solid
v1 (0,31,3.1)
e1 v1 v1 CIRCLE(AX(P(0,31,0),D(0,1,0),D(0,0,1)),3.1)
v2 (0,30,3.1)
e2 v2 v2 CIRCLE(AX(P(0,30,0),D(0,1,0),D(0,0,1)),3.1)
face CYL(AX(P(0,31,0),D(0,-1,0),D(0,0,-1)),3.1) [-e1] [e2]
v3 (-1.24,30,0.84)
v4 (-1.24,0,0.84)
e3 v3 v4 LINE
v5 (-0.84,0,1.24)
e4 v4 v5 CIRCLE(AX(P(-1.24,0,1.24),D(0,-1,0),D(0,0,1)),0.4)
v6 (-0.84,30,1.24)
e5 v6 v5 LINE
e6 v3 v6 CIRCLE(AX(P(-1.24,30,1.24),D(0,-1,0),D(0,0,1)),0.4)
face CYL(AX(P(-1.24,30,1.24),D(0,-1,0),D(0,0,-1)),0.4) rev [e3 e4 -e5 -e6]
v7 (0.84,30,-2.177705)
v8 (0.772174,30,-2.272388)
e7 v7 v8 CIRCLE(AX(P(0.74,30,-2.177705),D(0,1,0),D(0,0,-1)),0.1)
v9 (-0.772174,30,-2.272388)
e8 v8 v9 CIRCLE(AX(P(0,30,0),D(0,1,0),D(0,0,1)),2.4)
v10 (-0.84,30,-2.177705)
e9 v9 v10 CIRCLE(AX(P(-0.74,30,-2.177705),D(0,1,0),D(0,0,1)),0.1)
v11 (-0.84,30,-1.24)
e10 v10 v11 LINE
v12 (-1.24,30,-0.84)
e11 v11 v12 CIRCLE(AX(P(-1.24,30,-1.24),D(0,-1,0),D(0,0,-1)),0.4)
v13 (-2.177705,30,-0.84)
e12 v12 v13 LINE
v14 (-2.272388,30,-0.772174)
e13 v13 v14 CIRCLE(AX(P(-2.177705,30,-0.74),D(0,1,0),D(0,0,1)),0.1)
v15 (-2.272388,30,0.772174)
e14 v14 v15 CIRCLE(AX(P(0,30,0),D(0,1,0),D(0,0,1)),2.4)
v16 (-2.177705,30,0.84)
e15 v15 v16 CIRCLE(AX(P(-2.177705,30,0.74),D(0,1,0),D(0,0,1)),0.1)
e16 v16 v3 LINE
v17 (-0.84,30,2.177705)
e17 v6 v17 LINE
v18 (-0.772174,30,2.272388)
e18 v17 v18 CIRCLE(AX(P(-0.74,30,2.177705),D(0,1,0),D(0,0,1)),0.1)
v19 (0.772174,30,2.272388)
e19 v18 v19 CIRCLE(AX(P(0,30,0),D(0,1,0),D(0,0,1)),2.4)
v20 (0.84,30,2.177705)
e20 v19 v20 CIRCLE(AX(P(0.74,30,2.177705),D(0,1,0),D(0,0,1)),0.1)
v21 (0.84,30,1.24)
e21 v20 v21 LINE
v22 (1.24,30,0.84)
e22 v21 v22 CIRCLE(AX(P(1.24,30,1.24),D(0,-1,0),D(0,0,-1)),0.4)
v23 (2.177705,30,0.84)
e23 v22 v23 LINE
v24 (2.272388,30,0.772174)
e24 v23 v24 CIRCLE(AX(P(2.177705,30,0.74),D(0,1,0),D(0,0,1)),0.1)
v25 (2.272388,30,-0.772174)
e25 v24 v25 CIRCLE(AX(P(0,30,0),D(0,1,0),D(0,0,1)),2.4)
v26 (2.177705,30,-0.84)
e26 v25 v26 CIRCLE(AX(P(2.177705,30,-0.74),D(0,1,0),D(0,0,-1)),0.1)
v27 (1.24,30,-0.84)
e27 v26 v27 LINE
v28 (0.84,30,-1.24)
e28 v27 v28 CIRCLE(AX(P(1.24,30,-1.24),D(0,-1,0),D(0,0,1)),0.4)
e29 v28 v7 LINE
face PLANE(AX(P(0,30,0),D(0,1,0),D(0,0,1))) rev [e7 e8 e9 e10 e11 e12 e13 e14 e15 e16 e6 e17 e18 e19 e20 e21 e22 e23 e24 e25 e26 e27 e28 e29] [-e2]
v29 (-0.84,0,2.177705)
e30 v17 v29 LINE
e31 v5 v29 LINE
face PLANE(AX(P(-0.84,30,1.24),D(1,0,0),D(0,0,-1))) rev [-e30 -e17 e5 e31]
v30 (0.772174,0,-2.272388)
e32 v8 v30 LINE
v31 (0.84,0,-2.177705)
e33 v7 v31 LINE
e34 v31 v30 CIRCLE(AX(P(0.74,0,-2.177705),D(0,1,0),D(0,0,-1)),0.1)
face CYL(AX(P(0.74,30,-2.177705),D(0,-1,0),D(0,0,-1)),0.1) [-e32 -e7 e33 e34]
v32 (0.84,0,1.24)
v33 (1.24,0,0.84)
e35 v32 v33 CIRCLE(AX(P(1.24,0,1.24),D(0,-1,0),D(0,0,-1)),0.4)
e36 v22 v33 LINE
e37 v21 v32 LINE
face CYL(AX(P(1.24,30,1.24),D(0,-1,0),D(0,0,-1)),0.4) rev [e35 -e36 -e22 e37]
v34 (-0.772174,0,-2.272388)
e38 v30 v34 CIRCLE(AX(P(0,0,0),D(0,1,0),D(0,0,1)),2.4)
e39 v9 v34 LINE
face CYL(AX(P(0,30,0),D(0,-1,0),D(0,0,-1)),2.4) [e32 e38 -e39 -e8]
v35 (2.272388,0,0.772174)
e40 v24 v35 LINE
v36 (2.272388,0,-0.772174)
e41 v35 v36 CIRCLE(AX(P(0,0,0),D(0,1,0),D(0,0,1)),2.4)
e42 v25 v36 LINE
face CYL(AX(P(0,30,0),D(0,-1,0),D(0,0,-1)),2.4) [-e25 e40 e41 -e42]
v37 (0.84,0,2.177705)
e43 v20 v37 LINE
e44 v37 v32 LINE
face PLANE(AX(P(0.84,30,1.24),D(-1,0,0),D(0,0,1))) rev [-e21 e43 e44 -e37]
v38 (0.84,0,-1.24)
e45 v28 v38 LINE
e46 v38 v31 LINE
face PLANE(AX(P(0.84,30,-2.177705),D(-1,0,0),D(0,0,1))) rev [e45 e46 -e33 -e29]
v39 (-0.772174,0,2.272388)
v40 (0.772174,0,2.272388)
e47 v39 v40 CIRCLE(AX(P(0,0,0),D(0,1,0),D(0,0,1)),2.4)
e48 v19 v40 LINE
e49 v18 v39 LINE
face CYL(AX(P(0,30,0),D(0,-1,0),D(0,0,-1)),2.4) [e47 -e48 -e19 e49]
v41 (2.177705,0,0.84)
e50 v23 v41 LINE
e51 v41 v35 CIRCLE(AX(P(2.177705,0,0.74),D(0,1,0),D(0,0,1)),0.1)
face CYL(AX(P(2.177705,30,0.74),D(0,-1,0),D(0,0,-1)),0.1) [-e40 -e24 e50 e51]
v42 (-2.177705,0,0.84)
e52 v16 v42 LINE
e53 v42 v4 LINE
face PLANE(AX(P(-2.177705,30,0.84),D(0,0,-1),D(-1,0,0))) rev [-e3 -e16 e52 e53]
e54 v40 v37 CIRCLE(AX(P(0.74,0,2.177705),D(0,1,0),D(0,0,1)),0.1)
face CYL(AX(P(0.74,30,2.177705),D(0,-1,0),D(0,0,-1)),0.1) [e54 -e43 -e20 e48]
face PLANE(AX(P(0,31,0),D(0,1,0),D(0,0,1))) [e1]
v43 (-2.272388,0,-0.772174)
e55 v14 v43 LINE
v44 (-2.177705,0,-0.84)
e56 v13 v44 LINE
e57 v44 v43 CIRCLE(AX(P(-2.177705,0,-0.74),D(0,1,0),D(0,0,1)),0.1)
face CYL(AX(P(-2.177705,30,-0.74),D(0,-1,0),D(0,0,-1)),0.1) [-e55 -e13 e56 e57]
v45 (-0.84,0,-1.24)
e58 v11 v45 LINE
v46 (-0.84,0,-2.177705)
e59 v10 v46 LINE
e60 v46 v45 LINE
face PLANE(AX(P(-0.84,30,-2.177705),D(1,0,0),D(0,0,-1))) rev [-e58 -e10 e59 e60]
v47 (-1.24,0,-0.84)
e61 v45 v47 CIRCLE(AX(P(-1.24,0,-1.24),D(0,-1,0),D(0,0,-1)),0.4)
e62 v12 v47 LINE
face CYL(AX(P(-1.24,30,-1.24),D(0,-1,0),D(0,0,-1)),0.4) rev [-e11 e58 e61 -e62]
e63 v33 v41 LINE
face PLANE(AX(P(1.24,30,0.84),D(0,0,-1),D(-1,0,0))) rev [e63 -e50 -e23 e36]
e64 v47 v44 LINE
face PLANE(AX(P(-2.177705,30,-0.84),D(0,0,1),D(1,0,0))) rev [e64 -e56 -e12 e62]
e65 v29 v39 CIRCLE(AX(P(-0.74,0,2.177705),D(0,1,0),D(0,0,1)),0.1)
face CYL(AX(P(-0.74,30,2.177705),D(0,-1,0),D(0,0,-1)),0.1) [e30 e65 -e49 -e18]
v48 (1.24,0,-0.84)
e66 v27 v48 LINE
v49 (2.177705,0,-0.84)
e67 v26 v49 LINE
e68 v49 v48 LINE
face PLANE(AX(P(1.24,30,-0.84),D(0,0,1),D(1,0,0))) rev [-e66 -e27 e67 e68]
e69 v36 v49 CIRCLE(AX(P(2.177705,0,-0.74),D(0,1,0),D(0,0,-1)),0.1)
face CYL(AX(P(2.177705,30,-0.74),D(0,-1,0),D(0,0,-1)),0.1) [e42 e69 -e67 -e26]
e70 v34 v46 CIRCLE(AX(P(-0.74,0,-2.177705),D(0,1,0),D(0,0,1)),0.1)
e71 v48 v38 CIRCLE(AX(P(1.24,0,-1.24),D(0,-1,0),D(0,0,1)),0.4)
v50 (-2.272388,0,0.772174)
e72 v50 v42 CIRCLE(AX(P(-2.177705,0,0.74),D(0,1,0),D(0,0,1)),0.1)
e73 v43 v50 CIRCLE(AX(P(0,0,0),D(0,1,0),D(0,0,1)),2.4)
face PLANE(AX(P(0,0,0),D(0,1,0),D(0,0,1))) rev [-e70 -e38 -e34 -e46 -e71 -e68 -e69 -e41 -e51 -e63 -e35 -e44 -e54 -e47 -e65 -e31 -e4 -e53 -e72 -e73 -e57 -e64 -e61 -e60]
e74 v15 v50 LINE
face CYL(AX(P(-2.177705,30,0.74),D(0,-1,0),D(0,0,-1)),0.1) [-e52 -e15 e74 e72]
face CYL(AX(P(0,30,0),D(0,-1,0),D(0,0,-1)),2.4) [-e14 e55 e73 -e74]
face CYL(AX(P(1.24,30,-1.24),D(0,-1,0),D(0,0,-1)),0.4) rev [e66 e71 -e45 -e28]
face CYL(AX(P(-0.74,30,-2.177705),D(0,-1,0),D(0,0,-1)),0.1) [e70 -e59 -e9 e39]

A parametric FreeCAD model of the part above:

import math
import FreeCAD as App
import Part
import Sketcher

V = App.Vector
Q = App.Units.Quantity

doc = App.newDocument("Part")
body = doc.addObject("PartDesign::Body", "Body")

# Sketch on XZ plane
sketch1 = body.newObject("Sketcher::SketchObject", "Sketch")
sketch1.AttachmentSupport = (doc.getObject("XZ_Plane"), [""])
sketch1.MapMode = "FlatFace"
sketch1.addGeometry(Part.Circle(V(0, 0, 0), V(0, 0, 1), 3.1), False)
sketch1.addConstraint([
    Sketcher.Constraint("Coincident", 0, 3, -1, 1),
    Sketcher.Constraint("Diameter", 0, Q("6.2 mm")),
])
pad1 = body.newObject("PartDesign::Pad", "Pad")
pad1.Profile = sketch1
pad1.Length = 31
pad1.Reversed = True

# Sketch on XZ plane
sketch2 = body.newObject("Sketcher::SketchObject", "Sketch001")
sketch2.AttachmentSupport = (doc.getObject("XZ_Plane"), [""])
sketch2.MapMode = "FlatFace"
sketch2.addGeometry([
    Part.Circle(V(0, 0, 0), V(0, 0, 1), 3.1),  # 0
    Part.LineSegment(V(-0.84, 2.18, 0), V(-0.84, 1.24, 0)),  # 1
    Part.ArcOfCircle(Part.Circle(V(-1.24, 1.24, 0), V(0, 0, 1), 0.4), math.radians(-90), math.radians(0)),  # 2
    Part.LineSegment(V(-1.24, 0.84, 0), V(-2.18, 0.84, 0)),  # 3
    Part.ArcOfCircle(Part.Circle(V(-2.18, 0.74, 0), V(0, 0, 1), 0.1), math.radians(90), math.radians(161)),  # 4
    Part.ArcOfCircle(Part.Circle(V(0, 0, 0), V(0, 0, 1), 2.4), math.radians(161), math.radians(199)),  # 5
    Part.ArcOfCircle(Part.Circle(V(-2.18, -0.74, 0), V(0, 0, 1), 0.1), math.radians(-161), math.radians(-90)),  # 6
    Part.LineSegment(V(-2.18, -0.84, 0), V(-1.24, -0.84, 0)),  # 7
    Part.ArcOfCircle(Part.Circle(V(-1.24, -1.24, 0), V(0, 0, 1), 0.4), math.radians(0), math.radians(90)),  # 8
    Part.LineSegment(V(-0.84, -1.24, 0), V(-0.84, -2.18, 0)),  # 9
    Part.ArcOfCircle(Part.Circle(V(-0.74, -2.18, 0), V(0, 0, 1), 0.1), math.radians(-180), math.radians(-109)),  # 10
    Part.ArcOfCircle(Part.Circle(V(0, 0, 0), V(0, 0, 1), 2.4), math.radians(-109), math.radians(-71)),  # 11
    Part.ArcOfCircle(Part.Circle(V(0.74, -2.18, 0), V(0, 0, 1), 0.1), math.radians(-71), math.radians(0)),  # 12
    Part.LineSegment(V(0.84, -2.18, 0), V(0.84, -1.24, 0)),  # 13
    Part.ArcOfCircle(Part.Circle(V(1.24, -1.24, 0), V(0, 0, 1), 0.4), math.radians(90), math.radians(180)),  # 14
    Part.LineSegment(V(1.24, -0.84, 0), V(2.18, -0.84, 0)),  # 15
    Part.ArcOfCircle(Part.Circle(V(2.18, -0.74, 0), V(0, 0, 1), 0.1), math.radians(-90), math.radians(-19)),  # 16
    Part.ArcOfCircle(Part.Circle(V(0, 0, 0), V(0, 0, 1), 2.4), math.radians(-19), math.radians(19)),  # 17
    Part.ArcOfCircle(Part.Circle(V(2.18, 0.74, 0), V(0, 0, 1), 0.1), math.radians(19), math.radians(90)),  # 18
    Part.LineSegment(V(2.18, 0.84, 0), V(1.24, 0.84, 0)),  # 19
    Part.ArcOfCircle(Part.Circle(V(1.24, 1.24, 0), V(0, 0, 1), 0.4), math.radians(-180), math.radians(-90)),  # 20
    Part.LineSegment(V(0.84, 1.24, 0), V(0.84, 2.18, 0)),  # 21
    Part.ArcOfCircle(Part.Circle(V(0.74, 2.18, 0), V(0, 0, 1), 0.1), math.radians(0), math.radians(71)),  # 22
    Part.ArcOfCircle(Part.Circle(V(0, 0, 0), V(0, 0, 1), 2.4), math.radians(71), math.radians(109)),  # 23
    Part.ArcOfCircle(Part.Circle(V(-0.74, 2.18, 0), V(0, 0, 1), 0.1), math.radians(109), math.radians(180)),  # 24
], False)
sketch2.addConstraint([
    Sketcher.Constraint("Tangent", 1, 2, 2, 2),
    Sketcher.Constraint("Tangent", 2, 1, 3, 1),
    Sketcher.Constraint("Tangent", 3, 2, 4, 1),
    Sketcher.Constraint("Tangent", 4, 2, 5, 1),
    Sketcher.Constraint("Tangent", 5, 2, 6, 1),
    Sketcher.Constraint("Tangent", 6, 2, 7, 1),
    Sketcher.Constraint("Tangent", 7, 2, 8, 2),
    Sketcher.Constraint("Tangent", 8, 1, 9, 1),
    Sketcher.Constraint("Tangent", 9, 2, 10, 1),
    Sketcher.Constraint("Tangent", 10, 2, 11, 1),
    Sketcher.Constraint("Tangent", 11, 2, 12, 1),
    Sketcher.Constraint("Tangent", 12, 2, 13, 1),
    Sketcher.Constraint("Tangent", 13, 2, 14, 2),
    Sketcher.Constraint("Tangent", 14, 1, 15, 1),
    Sketcher.Constraint("Tangent", 15, 2, 16, 1),
    Sketcher.Constraint("Tangent", 16, 2, 17, 1),
    Sketcher.Constraint("Tangent", 17, 2, 18, 1),
    Sketcher.Constraint("Tangent", 18, 2, 19, 1),
    Sketcher.Constraint("Tangent", 19, 2, 20, 2),
    Sketcher.Constraint("Tangent", 20, 1, 21, 1),
    Sketcher.Constraint("Tangent", 21, 2, 22, 1),
    Sketcher.Constraint("Tangent", 22, 2, 23, 1),
    Sketcher.Constraint("Tangent", 23, 2, 24, 1),
    Sketcher.Constraint("Tangent", 24, 2, 1, 1),
    Sketcher.Constraint("Vertical", 1),
    Sketcher.Constraint("Horizontal", 3),
    Sketcher.Constraint("Horizontal", 7),
    Sketcher.Constraint("Vertical", 9),
    Sketcher.Constraint("Vertical", 13),
    Sketcher.Constraint("Horizontal", 15),
    Sketcher.Constraint("Horizontal", 19),
    Sketcher.Constraint("Vertical", 21),
    Sketcher.Constraint("Coincident", 0, 3, -1, 1),
    Sketcher.Constraint("Coincident", 5, 3, -1, 1),
    Sketcher.Constraint("Coincident", 11, 3, -1, 1),
    Sketcher.Constraint("Coincident", 17, 3, -1, 1),
    Sketcher.Constraint("Coincident", 23, 3, -1, 1),
    Sketcher.Constraint("Equal", 4, 6),
    Sketcher.Constraint("Equal", 2, 8),
    Sketcher.Constraint("Equal", 6, 10),
    Sketcher.Constraint("Equal", 5, 11),
    Sketcher.Constraint("Equal", 10, 12),
    Sketcher.Constraint("Equal", 8, 14),
    Sketcher.Constraint("Equal", 12, 16),
    Sketcher.Constraint("Equal", 11, 17),
    Sketcher.Constraint("Equal", 16, 18),
    Sketcher.Constraint("Equal", 14, 20),
    Sketcher.Constraint("Equal", 18, 22),
    Sketcher.Constraint("Equal", 17, 23),
    Sketcher.Constraint("Equal", 22, 24),
    Sketcher.Constraint("Symmetric", 2, 3, 14, 3, -1, 1),
    Sketcher.Constraint("Symmetric", 8, 3, 20, 3, -1, 1),
    Sketcher.Constraint("Symmetric", 8, 3, 14, 3, -2),
    Sketcher.Constraint("Equal", 19, 1),
    Sketcher.Constraint("Diameter", 0, Q("6.2 mm")),
    Sketcher.Constraint("Radius", 2, Q("0.4 mm")),
    Sketcher.Constraint("Radius", 4, Q("0.1 mm")),
    Sketcher.Constraint("Radius", 5, Q("2.4 mm")),
    Sketcher.Constraint("DistanceX", 2, 3, -1, 1, Q("1.24 mm")),
])
pocket1 = body.newObject("PartDesign::Pocket", "Pocket")
pocket1.Profile = sketch2
pocket1.Length = 30

doc.recompute()
